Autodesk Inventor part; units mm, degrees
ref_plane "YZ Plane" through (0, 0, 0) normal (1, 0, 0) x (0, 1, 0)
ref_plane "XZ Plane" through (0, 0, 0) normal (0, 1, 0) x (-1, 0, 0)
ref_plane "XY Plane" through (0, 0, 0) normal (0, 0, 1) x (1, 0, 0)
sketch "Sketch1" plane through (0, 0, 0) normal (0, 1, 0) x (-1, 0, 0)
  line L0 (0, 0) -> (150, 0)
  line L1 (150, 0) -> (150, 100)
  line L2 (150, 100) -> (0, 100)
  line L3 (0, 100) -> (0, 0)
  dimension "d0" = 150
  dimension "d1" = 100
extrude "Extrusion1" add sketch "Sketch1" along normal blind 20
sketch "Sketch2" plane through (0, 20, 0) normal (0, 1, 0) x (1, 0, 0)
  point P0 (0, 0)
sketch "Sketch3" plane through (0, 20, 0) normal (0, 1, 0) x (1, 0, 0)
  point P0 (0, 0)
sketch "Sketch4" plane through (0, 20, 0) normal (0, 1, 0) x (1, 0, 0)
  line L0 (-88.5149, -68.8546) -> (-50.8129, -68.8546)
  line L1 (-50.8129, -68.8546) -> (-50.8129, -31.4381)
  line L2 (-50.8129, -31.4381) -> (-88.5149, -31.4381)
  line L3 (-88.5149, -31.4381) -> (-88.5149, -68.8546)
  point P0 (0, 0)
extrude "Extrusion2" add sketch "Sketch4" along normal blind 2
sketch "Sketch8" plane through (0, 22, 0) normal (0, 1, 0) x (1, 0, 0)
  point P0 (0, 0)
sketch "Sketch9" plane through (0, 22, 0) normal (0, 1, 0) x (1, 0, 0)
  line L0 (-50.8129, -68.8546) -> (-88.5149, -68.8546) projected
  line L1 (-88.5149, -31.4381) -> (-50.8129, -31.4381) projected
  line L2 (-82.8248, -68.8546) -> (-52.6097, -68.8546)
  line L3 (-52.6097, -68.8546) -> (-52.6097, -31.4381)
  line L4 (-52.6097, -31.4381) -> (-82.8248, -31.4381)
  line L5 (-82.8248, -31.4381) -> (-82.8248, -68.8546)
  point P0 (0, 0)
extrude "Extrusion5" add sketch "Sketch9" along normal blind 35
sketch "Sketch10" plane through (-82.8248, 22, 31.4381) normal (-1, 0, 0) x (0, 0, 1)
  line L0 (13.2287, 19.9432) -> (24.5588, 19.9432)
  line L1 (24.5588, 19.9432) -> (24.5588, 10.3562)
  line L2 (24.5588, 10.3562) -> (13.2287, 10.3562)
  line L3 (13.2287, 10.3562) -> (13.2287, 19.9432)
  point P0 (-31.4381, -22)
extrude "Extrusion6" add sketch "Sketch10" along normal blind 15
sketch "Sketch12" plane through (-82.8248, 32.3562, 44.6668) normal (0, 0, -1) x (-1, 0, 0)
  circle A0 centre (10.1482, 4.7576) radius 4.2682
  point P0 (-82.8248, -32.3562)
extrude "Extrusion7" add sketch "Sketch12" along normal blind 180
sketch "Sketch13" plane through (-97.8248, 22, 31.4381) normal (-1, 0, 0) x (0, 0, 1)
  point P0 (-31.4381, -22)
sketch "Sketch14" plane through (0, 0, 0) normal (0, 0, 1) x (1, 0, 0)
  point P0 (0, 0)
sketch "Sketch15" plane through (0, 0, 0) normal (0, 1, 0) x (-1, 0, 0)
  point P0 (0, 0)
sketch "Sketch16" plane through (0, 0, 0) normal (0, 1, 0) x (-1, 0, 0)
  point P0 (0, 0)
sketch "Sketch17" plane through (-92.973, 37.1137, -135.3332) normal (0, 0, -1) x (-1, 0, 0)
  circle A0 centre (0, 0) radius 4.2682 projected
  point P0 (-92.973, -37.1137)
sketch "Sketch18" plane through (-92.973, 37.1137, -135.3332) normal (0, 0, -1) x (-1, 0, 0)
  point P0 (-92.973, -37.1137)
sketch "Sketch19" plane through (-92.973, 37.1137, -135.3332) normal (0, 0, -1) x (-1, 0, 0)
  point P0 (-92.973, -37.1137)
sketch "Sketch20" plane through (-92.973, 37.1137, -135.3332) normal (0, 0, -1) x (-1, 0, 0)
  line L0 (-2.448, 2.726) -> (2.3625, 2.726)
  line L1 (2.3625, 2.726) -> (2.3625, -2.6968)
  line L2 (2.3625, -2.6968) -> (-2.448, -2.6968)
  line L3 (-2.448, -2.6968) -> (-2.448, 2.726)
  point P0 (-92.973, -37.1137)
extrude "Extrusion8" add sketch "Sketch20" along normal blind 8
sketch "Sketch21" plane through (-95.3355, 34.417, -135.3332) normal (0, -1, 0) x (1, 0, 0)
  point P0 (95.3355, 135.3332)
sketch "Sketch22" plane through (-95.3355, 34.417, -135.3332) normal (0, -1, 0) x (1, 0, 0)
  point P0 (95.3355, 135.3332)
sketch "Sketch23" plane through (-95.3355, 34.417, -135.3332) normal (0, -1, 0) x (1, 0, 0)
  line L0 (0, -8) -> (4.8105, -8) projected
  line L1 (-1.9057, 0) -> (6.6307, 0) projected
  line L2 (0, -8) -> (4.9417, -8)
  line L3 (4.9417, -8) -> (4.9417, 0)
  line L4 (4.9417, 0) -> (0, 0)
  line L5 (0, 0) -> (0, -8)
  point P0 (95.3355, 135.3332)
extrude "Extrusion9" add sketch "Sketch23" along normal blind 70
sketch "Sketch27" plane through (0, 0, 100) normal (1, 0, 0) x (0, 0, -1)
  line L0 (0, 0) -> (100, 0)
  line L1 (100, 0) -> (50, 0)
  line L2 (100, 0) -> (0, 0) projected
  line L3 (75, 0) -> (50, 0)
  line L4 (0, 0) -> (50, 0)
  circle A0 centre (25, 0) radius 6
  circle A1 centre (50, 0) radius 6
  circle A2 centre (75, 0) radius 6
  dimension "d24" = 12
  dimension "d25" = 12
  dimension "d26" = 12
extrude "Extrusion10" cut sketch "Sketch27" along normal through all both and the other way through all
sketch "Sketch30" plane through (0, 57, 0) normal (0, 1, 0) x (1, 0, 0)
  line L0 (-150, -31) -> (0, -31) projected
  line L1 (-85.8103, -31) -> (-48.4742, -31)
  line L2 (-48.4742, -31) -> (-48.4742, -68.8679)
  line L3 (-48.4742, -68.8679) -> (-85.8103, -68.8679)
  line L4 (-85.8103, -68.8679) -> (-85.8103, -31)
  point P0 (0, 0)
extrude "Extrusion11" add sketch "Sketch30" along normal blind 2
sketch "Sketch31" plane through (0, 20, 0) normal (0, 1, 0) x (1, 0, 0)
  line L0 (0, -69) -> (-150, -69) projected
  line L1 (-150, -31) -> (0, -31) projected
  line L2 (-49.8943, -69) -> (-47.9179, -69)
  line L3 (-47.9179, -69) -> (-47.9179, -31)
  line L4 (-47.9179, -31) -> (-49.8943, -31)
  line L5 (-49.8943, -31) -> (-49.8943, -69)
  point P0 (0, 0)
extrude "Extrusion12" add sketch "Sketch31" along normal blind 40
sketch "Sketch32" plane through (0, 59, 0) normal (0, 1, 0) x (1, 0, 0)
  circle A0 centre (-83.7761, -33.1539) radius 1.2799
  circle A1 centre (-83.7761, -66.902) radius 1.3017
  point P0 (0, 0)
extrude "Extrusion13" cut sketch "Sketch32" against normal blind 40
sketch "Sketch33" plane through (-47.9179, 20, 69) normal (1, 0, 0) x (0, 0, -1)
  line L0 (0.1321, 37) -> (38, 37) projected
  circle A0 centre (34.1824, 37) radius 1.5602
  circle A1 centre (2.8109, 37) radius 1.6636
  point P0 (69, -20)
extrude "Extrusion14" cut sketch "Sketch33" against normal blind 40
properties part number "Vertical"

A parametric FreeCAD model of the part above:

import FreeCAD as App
import Part
import Sketcher

doc = App.newDocument("Part")
body = doc.addObject("PartDesign::Body", "Body")

sketch1 = body.newObject("Sketcher::SketchObject", "Sketch")
sketch1.AttachmentSupport = (doc.getObject("XZ_Plane"), [""])
sketch1.MapMode = "FlatFace"
sketch1.addGeometry([
    Part.LineSegment(App.Vector(0, 100, 0), App.Vector(0, 0, 0)),
    Part.LineSegment(App.Vector(0, 0, 0), App.Vector(-150, 0, 0)),
    Part.LineSegment(App.Vector(-150, 0, 0), App.Vector(-150, 100, 0)),
    Part.LineSegment(App.Vector(-150, 100, 0), App.Vector(0, 100, 0)),
], False)
sketch1.addConstraint([
    Sketcher.Constraint("Coincident", 0, 2, 1, 1),
    Sketcher.Constraint("Coincident", 1, 2, 2, 1),
    Sketcher.Constraint("Coincident", 2, 2, 3, 1),
    Sketcher.Constraint("Coincident", 3, 2, 0, 1),
    Sketcher.Constraint("Vertical", 0),
    Sketcher.Constraint("Horizontal", 1),
    Sketcher.Constraint("Vertical", 2),
    Sketcher.Constraint("Horizontal", 3),
    Sketcher.Constraint("Coincident", 0, 2, -1, 1),
    Sketcher.Constraint("DistanceX", 1, 2, 1, 1, 150.0),
    Sketcher.Constraint("DistanceY", 0, 2, 0, 1, 100.0),
])
pad1 = body.newObject("PartDesign::Pad", "Pad")
pad1.Profile = sketch1
pad1.Length = 20
pad1.Reversed = True

sketch2 = body.newObject("Sketcher::SketchObject", "Sketch001")
sketch2.AttachmentSupport = (doc.getObject("XZ_Plane"), [""])
sketch2.MapMode = "FlatFace"
sketch2.AttachmentOffset = App.Placement(App.Vector(0, 0, -20), App.Rotation())
sketch2.addGeometry([
    Part.LineSegment(App.Vector(-89, 31, 0), App.Vector(-89, 69, 0)),
    Part.LineSegment(App.Vector(-89, 69, 0), App.Vector(-51, 69, 0)),
    Part.LineSegment(App.Vector(-51, 69, 0), App.Vector(-51, 31, 0)),
    Part.LineSegment(App.Vector(-51, 31, 0), App.Vector(-89, 31, 0)),
], False)
sketch2.addConstraint([
    Sketcher.Constraint("Coincident", 0, 2, 1, 1),
    Sketcher.Constraint("Coincident", 1, 2, 2, 1),
    Sketcher.Constraint("Coincident", 2, 2, 3, 1),
    Sketcher.Constraint("Coincident", 3, 2, 0, 1),
    Sketcher.Constraint("Vertical", 0),
    Sketcher.Constraint("Horizontal", 1),
    Sketcher.Constraint("Vertical", 2),
    Sketcher.Constraint("Horizontal", 3),
    Sketcher.Constraint("DistanceX", 1, 1, 1, 2, 37.702),
    Sketcher.Constraint("DistanceY", 0, 1, 0, 2, 37.4165),
    Sketcher.Constraint("DistanceX", 0, 2, -1, 1, 88.515),
    Sketcher.Constraint("DistanceY", -1, 1, 2, 2, 31.438),
])
pad2 = body.newObject("PartDesign::Pad", "Pad001")
pad2.Profile = sketch2
pad2.Length = 2
pad2.Reversed = True

sketch3 = body.newObject("Sketcher::SketchObject", "Sketch002")
sketch3.AttachmentSupport = (doc.getObject("XZ_Plane"), [""])
sketch3.MapMode = "FlatFace"
sketch3.AttachmentOffset = App.Placement(App.Vector(0, 0, -22), App.Rotation())
sketch3.addGeometry([
    Part.LineSegment(App.Vector(-83, 69, 0), App.Vector(-53, 69, 0)),
    Part.LineSegment(App.Vector(-53, 69, 0), App.Vector(-53, 31, 0)),
    Part.LineSegment(App.Vector(-53, 31, 0), App.Vector(-83, 31, 0)),
    Part.LineSegment(App.Vector(-83, 31, 0), App.Vector(-83, 69, 0)),
], False)
sketch3.addConstraint([
    Sketcher.Constraint("Coincident", 0, 2, 1, 1),
    Sketcher.Constraint("Coincident", 1, 2, 2, 1),
    Sketcher.Constraint("Coincident", 2, 2, 3, 1),
    Sketcher.Constraint("Coincident", 3, 2, 0, 1),
    Sketcher.Constraint("Horizontal", 0),
    Sketcher.Constraint("Vertical", 1),
    Sketcher.Constraint("Horizontal", 2),
    Sketcher.Constraint("Vertical", 3),
    Sketcher.Constraint("DistanceX", 0, 1, 0, 2, 30.215),
    Sketcher.Constraint("DistanceY", 1, 2, 1, 1, 37.4165),
    Sketcher.Constraint("DistanceY", -1, 1, 1, 2, 31.438),
    Sketcher.Constraint("DistanceX", 0, 2, -1, 1, 52.6097),
])
pad3 = body.newObject("PartDesign::Pad", "Pad002")
pad3.Profile = sketch3
pad3.Length = 35
pad3.Reversed = True

sketch4 = body.newObject("Sketcher::SketchObject", "Sketch003")
sketch4.AttachmentSupport = (doc.getObject("YZ_Plane"), [""])
sketch4.MapMode = "FlatFace"
sketch4.AttachmentOffset = App.Placement(App.Vector(0, 0, -82.8248), App.Rotation())
sketch4.addGeometry([
    Part.LineSegment(App.Vector(42, 56, 0), App.Vector(42, 45, 0)),
    Part.LineSegment(App.Vector(42, 45, 0), App.Vector(32, 45, 0)),
    Part.LineSegment(App.Vector(32, 45, 0), App.Vector(32, 56, 0)),
    Part.LineSegment(App.Vector(32, 56, 0), App.Vector(42, 56, 0)),
], False)
sketch4.addConstraint([
    Sketcher.Constraint("Coincident", 0, 2, 1, 1),
    Sketcher.Constraint("Coincident", 1, 2, 2, 1),
    Sketcher.Constraint("Coincident", 2, 2, 3, 1),
    Sketcher.Constraint("Coincident", 3, 2, 0, 1),
    Sketcher.Constraint("Vertical", 0),
    Sketcher.Constraint("Horizontal", 1),
    Sketcher.Constraint("Vertical", 2),
    Sketcher.Constraint("Horizontal", 3),
    Sketcher.Constraint("DistanceY", 0, 2, 0, 1, 11.33),
    Sketcher.Constraint("DistanceX", 1, 2, 1, 1, 9.587),
    Sketcher.Constraint("DistanceY", -1, 1, 2, 2, 55.997),
    Sketcher.Constraint("DistanceX", -1, 1, 0, 2, 41.9432),
])
pad4 = body.newObject("PartDesign::Pad", "Pad003")
pad4.Profile = sketch4
pad4.Length = 15
pad4.Reversed = True

sketch5 = body.newObject("Sketcher::SketchObject", "Sketch004")
sketch5.AttachmentSupport = (doc.getObject("XY_Plane"), [""])
sketch5.MapMode = "FlatFace"
sketch5.AttachmentOffset = App.Placement(App.Vector(0, 0, 44.6668), App.Rotation())
sketch5.addGeometry(Part.Circle(App.Vector(-93, 37.1, 0), App.Vector(0, 0, 1), 4.3), False)
sketch5.addConstraint([
    Sketcher.Constraint("Diameter", 0, 8.5364),
    Sketcher.Constraint("DistanceX", 0, 3, -1, 1, 92.973),
    Sketcher.Constraint("DistanceY", -1, 1, 0, 3, 37.1138),
])
pad5 = body.newObject("PartDesign::Pad", "Pad004")
pad5.Profile = sketch5
pad5.Length = 180
pad5.Reversed = True

sketch6 = body.newObject("Sketcher::SketchObject", "Sketch005")
sketch6.AttachmentSupport = (doc.getObject("XY_Plane"), [""])
sketch6.MapMode = "FlatFace"
sketch6.AttachmentOffset = App.Placement(App.Vector(0, 0, -135.3332), App.Rotation())
sketch6.addGeometry([
    Part.LineSegment(App.Vector(-95.3, 39.8, 0), App.Vector(-90.5, 39.8, 0)),
    Part.LineSegment(App.Vector(-90.5, 39.8, 0), App.Vector(-90.5, 34.4, 0)),
    Part.LineSegment(App.Vector(-90.5, 34.4, 0), App.Vector(-95.3, 34.4, 0)),
    Part.LineSegment(App.Vector(-95.3, 34.4, 0), App.Vector(-95.3, 39.8, 0)),
], False)
sketch6.addConstraint([
    Sketcher.Constraint("Coincident", 0, 2, 1, 1),
    Sketcher.Constraint("Coincident", 1, 2, 2, 1),
    Sketcher.Constraint("Coincident", 2, 2, 3, 1),
    Sketcher.Constraint("Coincident", 3, 2, 0, 1),
    Sketcher.Constraint("Horizontal", 0),
    Sketcher.Constraint("Vertical", 1),
    Sketcher.Constraint("Horizontal", 2),
    Sketcher.Constraint("Vertical", 3),
    Sketcher.Constraint("DistanceX", 0, 1, 0, 2, 4.8105),
    Sketcher.Constraint("DistanceY", 1, 2, 1, 1, 5.4228),
    Sketcher.Constraint("DistanceX", 0, 2, -1, 1, 90.525),
    Sketcher.Constraint("DistanceY", -1, 1, 1, 2, 34.417),
])
pad6 = body.newObject("PartDesign::Pad", "Pad005")
pad6.Profile = sketch6
pad6.Length = 8
pad6.Reversed = True

sketch7 = body.newObject("Sketcher::SketchObject", "Sketch006")
sketch7.AttachmentSupport = (doc.getObject("XZ_Plane"), [""])
sketch7.MapMode = "FlatFace"
sketch7.AttachmentOffset = App.Placement(App.Vector(0, 0, -34.417), App.Rotation())
sketch7.addGeometry([
    Part.LineSegment(App.Vector(-95.3, -135.3, 0), App.Vector(-95.3, -143.3, 0)),
    Part.LineSegment(App.Vector(-95.3, -143.3, 0), App.Vector(-90.4, -143.3, 0)),
    Part.LineSegment(App.Vector(-90.4, -143.3, 0), App.Vector(-90.4, -135.3, 0)),
    Part.LineSegment(App.Vector(-90.4, -135.3, 0), App.Vector(-95.3, -135.3, 0)),
], False)
sketch7.addConstraint([
    Sketcher.Constraint("Coincident", 0, 2, 1, 1),
    Sketcher.Constraint("Coincident", 1, 2, 2, 1),
    Sketcher.Constraint("Coincident", 2, 2, 3, 1),
    Sketcher.Constraint("Coincident", 3, 2, 0, 1),
    Sketcher.Constraint("Vertical", 0),
    Sketcher.Constraint("Horizontal", 1),
    Sketcher.Constraint("Vertical", 2),
    Sketcher.Constraint("Horizontal", 3),
    Sketcher.Constraint("DistanceY", 0, 2, 0, 1, 8.0),
    Sketcher.Constraint("DistanceX", 1, 1, 1, 2, 4.9417),
    Sketcher.Constraint("DistanceX", 0, 2, -1, 1, 95.3355),
    Sketcher.Constraint("DistanceY", 0, 2, -1, 1, 143.3332),
])
pad7 = body.newObject("PartDesign::Pad", "Pad006")
pad7.Profile = sketch7
pad7.Length = 70

sketch8 = body.newObject("Sketcher::SketchObject", "Sketch007")
sketch8.AttachmentSupport = (doc.getObject("YZ_Plane"), [""])
sketch8.MapMode = "FlatFace"
sketch8.addGeometry([
    Part.Circle(App.Vector(0, 50, 0), App.Vector(0, 0, 1), 6),
    Part.Circle(App.Vector(0, 25, 0), App.Vector(0, 0, 1), 6),
    Part.Circle(App.Vector(0, 75, 0), App.Vector(0, 0, 1), 6),
], False)
sketch8.addConstraint([
    Sketcher.Constraint("Equal", 0, 1),
    Sketcher.Constraint("Equal", 1, 2),
    Sketcher.Constraint("PointOnObject", 0, 3, -2),
    Sketcher.Constraint("PointOnObject", 1, 3, -2),
    Sketcher.Constraint("PointOnObject", 2, 3, -2),
    Sketcher.Constraint("Diameter", 0, 12.0),
    Sketcher.Constraint("DistanceY", -1, 1, 0, 3, 50.0),
    Sketcher.Constraint("DistanceY", -1, 1, 1, 3, 25.0),
    Sketcher.Constraint("DistanceY", -1, 1, 2, 3, 75.0),
])
pocket1 = body.newObject("PartDesign::Pocket", "Pocket")
pocket1.Profile = sketch8
pocket1.Type = "ThroughAll"
pocket1.Midplane = True

sketch9 = body.newObject("Sketcher::SketchObject", "Sketch008")
sketch9.AttachmentSupport = (doc.getObject("XZ_Plane"), [""])
sketch9.MapMode = "FlatFace"
sketch9.AttachmentOffset = App.Placement(App.Vector(0, 0, -57), App.Rotation())
sketch9.addGeometry([
    Part.LineSegment(App.Vector(-48, 31, 0), App.Vector(-86, 31, 0)),
    Part.LineSegment(App.Vector(-86, 31, 0), App.Vector(-86, 69, 0)),
    Part.LineSegment(App.Vector(-86, 69, 0), App.Vector(-48, 69, 0)),
    Part.LineSegment(App.Vector(-48, 69, 0), App.Vector(-48, 31, 0)),
], False)
sketch9.addConstraint([
    Sketcher.Constraint("Coincident", 0, 2, 1, 1),
    Sketcher.Constraint("Coincident", 1, 2, 2, 1),
    Sketcher.Constraint("Coincident", 2, 2, 3, 1),
    Sketcher.Constraint("Coincident", 3, 2, 0, 1),
    Sketcher.Constraint("Horizontal", 0),
    Sketcher.Constraint("Vertical", 1),
    Sketcher.Constraint("Horizontal", 2),
    Sketcher.Constraint("Vertical", 3),
    Sketcher.Constraint("DistanceY", -1, 1, 0, 2, 31.0),
    Sketcher.Constraint("DistanceX", 0, 2, 0, 1, 37.336),
    Sketcher.Constraint("DistanceY", 1, 1, 1, 2, 37.868),
    Sketcher.Constraint("DistanceX", 0, 2, -1, 1, 85.8103),
])
pad8 = body.newObject("PartDesign::Pad", "Pad007")
pad8.Profile = sketch9
pad8.Length = 2
pad8.Reversed = True

sketch10 = body.newObject("Sketcher::SketchObject", "Sketch009")
sketch10.AttachmentSupport = (doc.getObject("XZ_Plane"), [""])
sketch10.MapMode = "FlatFace"
sketch10.AttachmentOffset = App.Placement(App.Vector(0, 0, -20), App.Rotation())
sketch10.addGeometry([
    Part.LineSegment(App.Vector(-49.9, 69, 0), App.Vector(-47.9, 69, 0)),
    Part.LineSegment(App.Vector(-47.9, 69, 0), App.Vector(-47.9, 31, 0)),
    Part.LineSegment(App.Vector(-47.9, 31, 0), App.Vector(-49.9, 31, 0)),
    Part.LineSegment(App.Vector(-49.9, 31, 0), App.Vector(-49.9, 69, 0)),
], False)
sketch10.addConstraint([
    Sketcher.Constraint("Coincident", 0, 2, 1, 1),
    Sketcher.Constraint("Coincident", 1, 2, 2, 1),
    Sketcher.Constraint("Coincident", 2, 2, 3, 1),
    Sketcher.Constraint("Coincident", 3, 2, 0, 1),
    Sketcher.Constraint("Horizontal", 0),
    Sketcher.Constraint("Vertical", 1),
    Sketcher.Constraint("Horizontal", 2),
    Sketcher.Constraint("Vertical", 3),
    Sketcher.Constraint("DistanceY", 1, 2, 1, 1, 38.0),
    Sketcher.Constraint("DistanceY", -1, 1, 0, 2, 69.0),
    Sketcher.Constraint("DistanceX", 0, 1, 0, 2, 1.9764),
    Sketcher.Constraint("DistanceX", 0, 2, -1, 1, 47.918),
])
pad9 = body.newObject("PartDesign::Pad", "Pad008")
pad9.Profile = sketch10
pad9.Length = 40
pad9.Reversed = True

sketch11 = body.newObject("Sketcher::SketchObject", "Sketch010")
sketch11.AttachmentSupport = (doc.getObject("XZ_Plane"), [""])
sketch11.MapMode = "FlatFace"
sketch11.AttachmentOffset = App.Placement(App.Vector(0, 0, -59), App.Rotation())
sketch11.addGeometry([
    Part.Circle(App.Vector(-83.8, 33.2, 0), App.Vector(0, 0, 1), 1.3),
    Part.Circle(App.Vector(-83.8, 66.9, 0), App.Vector(0, 0, 1), 1.3),
], False)
sketch11.addConstraint([
    Sketcher.Constraint("Vertical", 0, 3, 1, 3),
    Sketcher.Constraint("Diameter", 0, 2.5598),
    Sketcher.Constraint("Diameter", 1, 2.6034),
    Sketcher.Constraint("DistanceX", 0, 3, -1, 1, 83.776),
    Sketcher.Constraint("DistanceY", -1, 1, 0, 3, 33.154),
    Sketcher.Constraint("DistanceY", -1, 1, 1, 3, 66.902),
])
pocket2 = body.newObject("PartDesign::Pocket", "Pocket001")
pocket2.Profile = sketch11
pocket2.Length = 40
pocket2.Reversed = True

sketch12 = body.newObject("Sketcher::SketchObject", "Sketch011")
sketch12.AttachmentSupport = (doc.getObject("YZ_Plane"), [""])
sketch12.MapMode = "FlatFace"
sketch12.AttachmentOffset = App.Placement(App.Vector(0, 0, -47.9179), App.Rotation())
sketch12.addGeometry([
    Part.Circle(App.Vector(57, 66.2, 0), App.Vector(0, 0, 1), 1.7),
    Part.Circle(App.Vector(57, 34.8, 0), App.Vector(0, 0, 1), 1.6),
], False)
sketch12.addConstraint([
    Sketcher.Constraint("Vertical", 0, 3, 1, 3),
    Sketcher.Constraint("DistanceX", -1, 1, 0, 3, 57.0),
    Sketcher.Constraint("Diameter", 0, 3.3272),
    Sketcher.Constraint("Diameter", 1, 3.1204),
    Sketcher.Constraint("DistanceY", -1, 1, 0, 3, 66.189),
    Sketcher.Constraint("DistanceY", -1, 1, 1, 3, 34.8176),
])
pocket3 = body.newObject("PartDesign::Pocket", "Pocket002")
pocket3.Profile = sketch12
pocket3.Length = 40

doc.recompute()
